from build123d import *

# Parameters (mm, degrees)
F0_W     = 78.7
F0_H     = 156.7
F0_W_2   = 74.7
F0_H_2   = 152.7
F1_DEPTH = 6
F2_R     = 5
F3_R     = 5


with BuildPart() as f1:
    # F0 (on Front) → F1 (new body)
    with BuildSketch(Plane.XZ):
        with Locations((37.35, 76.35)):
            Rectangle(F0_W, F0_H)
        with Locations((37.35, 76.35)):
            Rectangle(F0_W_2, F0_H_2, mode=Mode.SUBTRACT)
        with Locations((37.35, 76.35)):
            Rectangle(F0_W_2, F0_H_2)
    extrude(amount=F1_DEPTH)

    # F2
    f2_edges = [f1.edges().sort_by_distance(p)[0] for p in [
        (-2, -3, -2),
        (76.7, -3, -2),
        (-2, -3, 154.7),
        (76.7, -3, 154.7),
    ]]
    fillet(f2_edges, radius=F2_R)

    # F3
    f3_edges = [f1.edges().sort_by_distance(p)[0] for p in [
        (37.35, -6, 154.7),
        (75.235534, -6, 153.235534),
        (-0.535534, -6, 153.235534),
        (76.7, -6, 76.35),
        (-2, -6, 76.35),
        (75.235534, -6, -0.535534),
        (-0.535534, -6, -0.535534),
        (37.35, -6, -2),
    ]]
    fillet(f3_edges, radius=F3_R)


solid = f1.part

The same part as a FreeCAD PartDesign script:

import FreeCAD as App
import Part
import Sketcher

V = App.Vector
Q = App.Units.Quantity


def edges_at(feature, points):
    """Names of the edges that pass closest to the given points."""
    edges = feature.Shape.Edges
    near = lambda p: min(range(len(edges)), key=lambda i: edges[i].distToShape(Part.Vertex(*p))[0])
    return sorted({f"Edge{near(p) + 1}" for p in points})

doc = App.newDocument("Part")
params = doc.addObject("Spreadsheet::Sheet", "Params")
for row, (alias, value) in enumerate([
    ("sketch1_width", "78.7 mm"),
    ("sketch1_height", "156.7 mm"),
    ("pad1_length", "6 mm"),
    ("fillet_radius", "5 mm"),
    ("fillet2_radius", "5 mm"),
], start=1):
    params.set(f"A{row}", alias)
    params.set(f"B{row}", "=" + value)
    params.setAlias(f"B{row}", alias)

body = doc.addObject("PartDesign::Body", "Body")

# Sketch on XZ plane
sketch1 = body.newObject("Sketcher::SketchObject", "Sketch")
sketch1.AttachmentSupport = (doc.getObject("XZ_Plane"), [""])
sketch1.MapMode = "FlatFace"
sketch1.addGeometry(Part.LineSegment(V(-2, 155, 0), V(-2, -2, 0)), False)
sketch1.addGeometry(Part.LineSegment(V(-2, -2, 0), V(77, -2, 0)), False)
sketch1.addGeometry(Part.LineSegment(V(77, -2, 0), V(77, 155, 0)), False)
sketch1.addGeometry(Part.LineSegment(V(77, 155, 0), V(-2, 155, 0)), False)
sketch1.addConstraint(Sketcher.Constraint("Coincident", 0, 2, 1, 1))
sketch1.addConstraint(Sketcher.Constraint("Coincident", 1, 2, 2, 1))
sketch1.addConstraint(Sketcher.Constraint("Coincident", 2, 2, 3, 1))
sketch1.addConstraint(Sketcher.Constraint("Coincident", 3, 2, 0, 1))
sketch1.addConstraint(Sketcher.Constraint("Vertical", 0))
sketch1.addConstraint(Sketcher.Constraint("Horizontal", 1))
sketch1.addConstraint(Sketcher.Constraint("Vertical", 2))
sketch1.addConstraint(Sketcher.Constraint("Horizontal", 3))
sketch1.addConstraint(Sketcher.Constraint("DistanceX", 1, 1, 1, 2, Q("78.7 mm")))
sketch1.addConstraint(Sketcher.Constraint("DistanceY", 0, 2, 0, 1, Q("156.7 mm")))
sketch1.addConstraint(Sketcher.Constraint("DistanceX", 0, 2, -1, 1, Q("2 mm")))
sketch1.addConstraint(Sketcher.Constraint("DistanceY", 0, 2, -1, 1, Q("2 mm")))
sketch1.setExpression("Constraints[8]", "Params.sketch1_width")
sketch1.setExpression("Constraints[9]", "Params.sketch1_height")
pad1 = body.newObject("PartDesign::Pad", "Pad")
pad1.Profile = sketch1
pad1.setExpression("Length", "Params.pad1_length")
doc.recompute()

fillet = body.newObject("PartDesign::Fillet", "Fillet")
fillet.Base = (pad1, edges_at(pad1, [
    (-2, -3, -2),
    (76.7, -3, -2),
    (-2, -3, 154.7),
    (76.7, -3, 154.7),
]))
fillet.setExpression("Radius", "Params.fillet_radius")
doc.recompute()

fillet2 = body.newObject("PartDesign::Fillet", "Fillet001")
fillet2.Base = (fillet, edges_at(fillet, [
    (37.35, -6, 154.7),
    (75.236, -6, 153.236),
    (-0.536, -6, 153.236),
    (76.7, -6, 76.35),
    (-2, -6, 76.35),
    (75.236, -6, -0.536),
    (-0.536, -6, -0.536),
    (37.35, -6, -2),
]))
fillet2.setExpression("Radius", "Params.fillet2_radius")

doc.recompute()
